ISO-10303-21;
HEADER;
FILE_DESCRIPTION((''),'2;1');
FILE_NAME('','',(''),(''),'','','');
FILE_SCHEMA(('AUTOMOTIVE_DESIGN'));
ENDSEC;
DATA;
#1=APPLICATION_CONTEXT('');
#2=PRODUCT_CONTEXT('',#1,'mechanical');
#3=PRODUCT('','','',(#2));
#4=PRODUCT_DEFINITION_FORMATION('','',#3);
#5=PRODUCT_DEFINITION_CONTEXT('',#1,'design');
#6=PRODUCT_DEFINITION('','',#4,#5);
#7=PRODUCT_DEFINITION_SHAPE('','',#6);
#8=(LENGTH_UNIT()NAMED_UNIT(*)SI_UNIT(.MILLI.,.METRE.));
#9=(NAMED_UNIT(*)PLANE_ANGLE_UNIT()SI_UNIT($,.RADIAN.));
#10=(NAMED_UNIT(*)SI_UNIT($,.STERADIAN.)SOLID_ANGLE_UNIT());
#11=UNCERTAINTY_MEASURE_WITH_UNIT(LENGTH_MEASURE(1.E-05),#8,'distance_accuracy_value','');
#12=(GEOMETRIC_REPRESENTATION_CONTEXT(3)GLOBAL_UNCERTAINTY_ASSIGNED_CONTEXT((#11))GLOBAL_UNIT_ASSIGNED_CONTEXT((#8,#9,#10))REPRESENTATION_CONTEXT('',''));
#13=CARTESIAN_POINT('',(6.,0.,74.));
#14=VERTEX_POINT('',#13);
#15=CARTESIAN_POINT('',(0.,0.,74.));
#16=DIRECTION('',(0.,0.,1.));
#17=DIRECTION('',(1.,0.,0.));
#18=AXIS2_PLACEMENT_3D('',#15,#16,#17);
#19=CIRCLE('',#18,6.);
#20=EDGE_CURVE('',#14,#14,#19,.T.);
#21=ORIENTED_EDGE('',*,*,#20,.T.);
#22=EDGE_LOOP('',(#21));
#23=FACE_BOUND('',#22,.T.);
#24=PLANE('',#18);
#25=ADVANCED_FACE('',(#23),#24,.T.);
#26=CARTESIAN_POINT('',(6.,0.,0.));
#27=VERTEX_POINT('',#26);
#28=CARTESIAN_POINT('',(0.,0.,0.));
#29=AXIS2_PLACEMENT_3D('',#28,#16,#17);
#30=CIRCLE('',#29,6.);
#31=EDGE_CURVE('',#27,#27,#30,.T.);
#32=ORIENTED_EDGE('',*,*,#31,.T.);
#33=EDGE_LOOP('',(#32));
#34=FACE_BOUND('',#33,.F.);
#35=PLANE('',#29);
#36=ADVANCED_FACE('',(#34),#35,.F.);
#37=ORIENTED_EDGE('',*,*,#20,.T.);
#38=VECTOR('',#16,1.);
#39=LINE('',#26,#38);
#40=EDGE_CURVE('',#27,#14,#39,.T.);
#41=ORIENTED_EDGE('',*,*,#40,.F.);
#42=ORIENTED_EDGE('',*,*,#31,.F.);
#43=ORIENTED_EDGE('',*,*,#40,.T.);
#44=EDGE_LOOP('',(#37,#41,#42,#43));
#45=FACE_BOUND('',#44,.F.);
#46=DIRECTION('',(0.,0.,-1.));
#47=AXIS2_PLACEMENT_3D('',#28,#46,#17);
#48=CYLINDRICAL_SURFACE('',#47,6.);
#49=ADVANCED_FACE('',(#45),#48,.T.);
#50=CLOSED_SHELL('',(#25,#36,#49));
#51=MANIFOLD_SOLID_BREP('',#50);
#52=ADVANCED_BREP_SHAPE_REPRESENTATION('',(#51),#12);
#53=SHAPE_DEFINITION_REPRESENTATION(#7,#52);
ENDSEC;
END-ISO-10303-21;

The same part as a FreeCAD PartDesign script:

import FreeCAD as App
import Part
import Sketcher

V = App.Vector
Q = App.Units.Quantity

doc = App.newDocument("Part")
body = doc.addObject("PartDesign::Body", "Body")

# Sketch on XY plane
sketch1 = doc.addObject("Sketcher::SketchObject", "Sketch")
body.addObject(sketch1)
sketch1.AttachmentSupport = (doc.XY_Plane, [""])
sketch1.MapMode = "FlatFace"
sketch1.addGeometry(Part.Circle(V(0, 0, 0), V(0, 0, 1), 6), False)
sketch1.addConstraint(Sketcher.Constraint("Coincident", 0, 3, -1, 1))
sketch1.addConstraint(Sketcher.Constraint("Diameter", 0, Q("12 mm")))
pad1 = doc.addObject("PartDesign::Pad", "Pad")
body.addObject(pad1)
pad1.Profile = sketch1
pad1.Length = 74

doc.recompute()
